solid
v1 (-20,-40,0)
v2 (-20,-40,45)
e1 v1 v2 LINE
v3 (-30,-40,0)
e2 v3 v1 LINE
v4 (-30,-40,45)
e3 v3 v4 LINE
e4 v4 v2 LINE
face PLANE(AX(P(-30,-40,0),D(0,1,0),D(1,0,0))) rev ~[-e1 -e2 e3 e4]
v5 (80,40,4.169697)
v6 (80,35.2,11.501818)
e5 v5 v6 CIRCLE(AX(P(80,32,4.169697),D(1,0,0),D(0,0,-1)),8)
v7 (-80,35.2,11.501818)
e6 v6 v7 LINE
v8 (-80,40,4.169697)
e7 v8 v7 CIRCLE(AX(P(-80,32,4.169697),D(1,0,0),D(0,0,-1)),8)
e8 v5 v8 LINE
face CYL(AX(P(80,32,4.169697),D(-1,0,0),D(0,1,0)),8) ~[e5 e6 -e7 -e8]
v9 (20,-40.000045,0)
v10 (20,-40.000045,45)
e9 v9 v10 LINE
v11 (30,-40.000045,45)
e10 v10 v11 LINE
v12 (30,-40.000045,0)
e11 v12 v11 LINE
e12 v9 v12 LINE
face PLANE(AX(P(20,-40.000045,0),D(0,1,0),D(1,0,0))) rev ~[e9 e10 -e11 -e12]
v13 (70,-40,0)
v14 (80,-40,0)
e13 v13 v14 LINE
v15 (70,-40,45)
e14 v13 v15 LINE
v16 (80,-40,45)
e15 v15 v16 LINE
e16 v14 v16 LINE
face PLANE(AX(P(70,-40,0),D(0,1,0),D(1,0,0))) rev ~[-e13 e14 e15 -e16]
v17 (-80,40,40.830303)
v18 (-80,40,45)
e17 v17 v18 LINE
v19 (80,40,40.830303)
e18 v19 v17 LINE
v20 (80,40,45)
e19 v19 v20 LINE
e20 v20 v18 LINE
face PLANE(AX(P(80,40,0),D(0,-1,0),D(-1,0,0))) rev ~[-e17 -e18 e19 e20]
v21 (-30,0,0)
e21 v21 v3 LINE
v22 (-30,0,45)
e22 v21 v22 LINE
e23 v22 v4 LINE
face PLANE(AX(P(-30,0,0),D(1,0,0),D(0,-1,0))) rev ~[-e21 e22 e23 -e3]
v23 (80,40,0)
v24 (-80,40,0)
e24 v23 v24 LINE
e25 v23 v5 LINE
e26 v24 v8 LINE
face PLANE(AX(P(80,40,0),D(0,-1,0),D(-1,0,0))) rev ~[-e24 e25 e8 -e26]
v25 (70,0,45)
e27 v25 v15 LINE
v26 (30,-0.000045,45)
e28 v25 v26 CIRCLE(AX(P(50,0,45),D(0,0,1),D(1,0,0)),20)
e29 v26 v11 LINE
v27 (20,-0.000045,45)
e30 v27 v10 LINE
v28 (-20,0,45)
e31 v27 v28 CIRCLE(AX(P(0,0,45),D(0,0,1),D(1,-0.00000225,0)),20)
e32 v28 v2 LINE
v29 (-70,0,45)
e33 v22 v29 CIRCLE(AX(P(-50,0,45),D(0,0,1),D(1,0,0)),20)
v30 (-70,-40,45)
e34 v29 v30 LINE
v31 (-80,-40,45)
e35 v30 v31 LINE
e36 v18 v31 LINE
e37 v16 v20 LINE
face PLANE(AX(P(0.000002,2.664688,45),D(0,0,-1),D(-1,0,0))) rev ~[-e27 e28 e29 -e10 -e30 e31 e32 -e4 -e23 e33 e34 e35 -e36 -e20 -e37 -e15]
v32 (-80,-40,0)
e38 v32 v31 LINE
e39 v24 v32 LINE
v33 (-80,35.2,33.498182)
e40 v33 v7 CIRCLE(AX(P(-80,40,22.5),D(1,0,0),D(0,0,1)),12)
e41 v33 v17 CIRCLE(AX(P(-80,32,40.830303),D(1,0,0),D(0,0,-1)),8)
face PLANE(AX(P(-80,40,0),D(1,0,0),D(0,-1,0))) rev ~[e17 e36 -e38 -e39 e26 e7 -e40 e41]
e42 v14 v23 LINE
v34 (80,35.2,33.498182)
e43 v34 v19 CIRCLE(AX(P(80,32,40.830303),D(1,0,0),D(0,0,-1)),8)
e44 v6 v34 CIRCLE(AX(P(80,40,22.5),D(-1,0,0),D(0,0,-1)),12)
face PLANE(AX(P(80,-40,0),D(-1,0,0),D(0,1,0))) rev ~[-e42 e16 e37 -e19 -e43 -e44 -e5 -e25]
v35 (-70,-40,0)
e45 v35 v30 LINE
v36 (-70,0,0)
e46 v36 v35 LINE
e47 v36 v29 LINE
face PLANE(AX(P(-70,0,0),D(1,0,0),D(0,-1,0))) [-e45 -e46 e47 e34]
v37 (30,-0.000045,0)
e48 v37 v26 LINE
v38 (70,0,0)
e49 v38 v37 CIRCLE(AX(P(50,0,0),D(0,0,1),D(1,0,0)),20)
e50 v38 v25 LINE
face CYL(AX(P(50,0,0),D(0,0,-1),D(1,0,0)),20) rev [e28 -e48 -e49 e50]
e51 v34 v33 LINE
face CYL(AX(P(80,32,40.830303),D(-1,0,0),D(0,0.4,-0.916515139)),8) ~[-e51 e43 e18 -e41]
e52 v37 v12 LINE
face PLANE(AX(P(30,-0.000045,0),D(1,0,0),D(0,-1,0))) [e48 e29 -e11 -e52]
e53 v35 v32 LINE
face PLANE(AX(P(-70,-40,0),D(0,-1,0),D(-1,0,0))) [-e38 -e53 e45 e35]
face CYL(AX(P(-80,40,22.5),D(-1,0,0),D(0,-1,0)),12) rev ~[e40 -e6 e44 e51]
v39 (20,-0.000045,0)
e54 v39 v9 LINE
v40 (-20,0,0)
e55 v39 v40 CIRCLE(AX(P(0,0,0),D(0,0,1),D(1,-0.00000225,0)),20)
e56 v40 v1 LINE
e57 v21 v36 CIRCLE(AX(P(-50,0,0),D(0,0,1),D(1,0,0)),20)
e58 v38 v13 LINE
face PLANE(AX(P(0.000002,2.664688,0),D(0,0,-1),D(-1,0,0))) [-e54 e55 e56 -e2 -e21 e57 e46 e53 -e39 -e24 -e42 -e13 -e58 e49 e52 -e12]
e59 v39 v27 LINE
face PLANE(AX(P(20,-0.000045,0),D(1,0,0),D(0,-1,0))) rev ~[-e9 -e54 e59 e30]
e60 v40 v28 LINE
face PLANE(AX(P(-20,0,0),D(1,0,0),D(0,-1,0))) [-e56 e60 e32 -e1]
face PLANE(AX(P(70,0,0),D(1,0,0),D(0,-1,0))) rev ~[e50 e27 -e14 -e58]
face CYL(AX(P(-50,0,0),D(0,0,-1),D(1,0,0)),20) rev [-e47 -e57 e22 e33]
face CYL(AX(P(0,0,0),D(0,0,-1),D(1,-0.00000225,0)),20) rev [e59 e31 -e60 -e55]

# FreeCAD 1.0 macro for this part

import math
import FreeCAD as App
import Part
import Sketcher
from FreeCAD import Vector
Q = App.Units.Quantity


def edges_at(feature, points):
    """Names of the edges that pass closest to the given points."""
    edges = feature.Shape.Edges
    near = lambda p: min(range(len(edges)), key=lambda i: edges[i].distToShape(Part.Vertex(*p))[0])
    return sorted({f"Edge{near(p) + 1}" for p in points})

doc = App.newDocument("Part")
params = doc.addObject("Spreadsheet::Sheet", "Params")
for row, (alias, value) in enumerate([
    ("sketch1_radius", "20 mm"),
    ("sketch1_width", "10 mm"),
    ("sketch1_height", "40 mm"),
    ("pad1_length", "45 mm"),
    ("sketch2_diameter", "24 mm"),
    ("fillet_radius", "8 mm"),
], start=1):
    params.set(f"A{row}", alias)
    params.set(f"B{row}", "=" + value)
    params.setAlias(f"B{row}", alias)

body = doc.addObject("PartDesign::Body", "Body")

# Sketch on XY plane
sketch1 = doc.addObject("Sketcher::SketchObject", "Sketch")
body.addObject(sketch1)
sketch1.AttachmentSupport = (doc.XY_Plane, [""])
sketch1.MapMode = "FlatFace"
sketch1.addGeometry(Part.ArcOfCircle(Part.Circle(Vector(-50, 0, 0), Vector(0, 0, 1), 20), math.radians(0), math.radians(180)), False)
sketch1.addGeometry(Part.LineSegment(Vector(-30, 0, 0), Vector(-30, -40, 0)), False)
sketch1.addGeometry(Part.LineSegment(Vector(-30, -40, 0), Vector(-20, -40, 0)), False)
sketch1.addGeometry(Part.LineSegment(Vector(-20, -40, 0), Vector(-20, 0, 0)), False)
sketch1.addGeometry(Part.ArcOfCircle(Part.Circle(Vector(0, 0, 0), Vector(0, 0, 1), 20), math.radians(0), math.radians(180)), False)
sketch1.addGeometry(Part.LineSegment(Vector(20, 0, 0), Vector(20, -40, 0)), False)
sketch1.addGeometry(Part.LineSegment(Vector(20, -40, 0), Vector(30, -40, 0)), False)
sketch1.addGeometry(Part.LineSegment(Vector(30, -40, 0), Vector(30, 0, 0)), False)
sketch1.addGeometry(Part.ArcOfCircle(Part.Circle(Vector(50, 0, 0), Vector(0, 0, 1), 20), math.radians(0), math.radians(180)), False)
sketch1.addGeometry(Part.LineSegment(Vector(70, 0, 0), Vector(70, -40, 0)), False)
sketch1.addGeometry(Part.LineSegment(Vector(70, -40, 0), Vector(80, -40, 0)), False)
sketch1.addGeometry(Part.LineSegment(Vector(80, -40, 0), Vector(80, 40, 0)), False)
sketch1.addGeometry(Part.LineSegment(Vector(80, 40, 0), Vector(-80, 40, 0)), False)
sketch1.addGeometry(Part.LineSegment(Vector(-80, 40, 0), Vector(-80, -40, 0)), False)
sketch1.addGeometry(Part.LineSegment(Vector(-80, -40, 0), Vector(-70, -40, 0)), False)
sketch1.addGeometry(Part.LineSegment(Vector(-70, -40, 0), Vector(-70, 0, 0)), False)
sketch1.addConstraint(Sketcher.Constraint("Tangent", 0, 1, 1, 1))
sketch1.addConstraint(Sketcher.Constraint("Coincident", 1, 2, 2, 1))
sketch1.addConstraint(Sketcher.Constraint("Coincident", 2, 2, 3, 1))
sketch1.addConstraint(Sketcher.Constraint("Tangent", 3, 2, 4, 2))
sketch1.addConstraint(Sketcher.Constraint("Coincident", 4, 1, 5, 1))
sketch1.addConstraint(Sketcher.Constraint("Coincident", 5, 2, 6, 1))
sketch1.addConstraint(Sketcher.Constraint("Coincident", 6, 2, 7, 1))
sketch1.addConstraint(Sketcher.Constraint("Coincident", 7, 2, 8, 2))
sketch1.addConstraint(Sketcher.Constraint("Tangent", 8, 1, 9, 1))
sketch1.addConstraint(Sketcher.Constraint("Coincident", 9, 2, 10, 1))
sketch1.addConstraint(Sketcher.Constraint("Coincident", 10, 2, 11, 1))
sketch1.addConstraint(Sketcher.Constraint("Coincident", 11, 2, 12, 1))
sketch1.addConstraint(Sketcher.Constraint("Coincident", 12, 2, 13, 1))
sketch1.addConstraint(Sketcher.Constraint("Coincident", 13, 2, 14, 1))
sketch1.addConstraint(Sketcher.Constraint("Coincident", 14, 2, 15, 1))
sketch1.addConstraint(Sketcher.Constraint("Tangent", 15, 2, 0, 2))
sketch1.addConstraint(Sketcher.Constraint("Vertical", 1))
sketch1.addConstraint(Sketcher.Constraint("Horizontal", 2))
sketch1.addConstraint(Sketcher.Constraint("Vertical", 3))
sketch1.addConstraint(Sketcher.Constraint("Vertical", 5))
sketch1.addConstraint(Sketcher.Constraint("Horizontal", 6))
sketch1.addConstraint(Sketcher.Constraint("Vertical", 7))
sketch1.addConstraint(Sketcher.Constraint("Vertical", 9))
sketch1.addConstraint(Sketcher.Constraint("Horizontal", 10))
sketch1.addConstraint(Sketcher.Constraint("Vertical", 11))
sketch1.addConstraint(Sketcher.Constraint("Horizontal", 12))
sketch1.addConstraint(Sketcher.Constraint("Vertical", 13))
sketch1.addConstraint(Sketcher.Constraint("Horizontal", 14))
sketch1.addConstraint(Sketcher.Constraint("Vertical", 15))
sketch1.addConstraint(Sketcher.Constraint("Coincident", 4, 3, -1, 1))
sketch1.addConstraint(Sketcher.Constraint("Equal", 0, 4))
sketch1.addConstraint(Sketcher.Constraint("Equal", 4, 8))
sketch1.addConstraint(Sketcher.Constraint("Symmetric", 0, 3, 8, 3, -1, 1))
sketch1.addConstraint(Sketcher.Constraint("Symmetric", 10, 2, 12, 2, -1, 1))
sketch1.addConstraint(Sketcher.Constraint("PointOnObject", 0, 3, -1))
sketch1.addConstraint(Sketcher.Constraint("Horizontal", 4, 1, 7, 2))
sketch1.addConstraint(Sketcher.Constraint("Horizontal", 2, 2, 9, 2))
sketch1.addConstraint(Sketcher.Constraint("Horizontal", 10, 2, 13, 2))
sketch1.addConstraint(Sketcher.Constraint("Equal", 6, 10))
sketch1.addConstraint(Sketcher.Constraint("Equal", 3, 5))
sketch1.addConstraint(Sketcher.Constraint("Radius", 0, Q("20 mm")))
sketch1.addConstraint(Sketcher.Constraint("DistanceX", 2, 1, 2, 2, Q("10 mm")))
sketch1.addConstraint(Sketcher.Constraint("DistanceY", 1, 2, 1, 1, Q("40 mm")))
sketch1.addConstraint(Sketcher.Constraint("DistanceY", 5, 2, -1, 1, Q("40.000045 mm")))
sketch1.setExpression("Constraints[40]", "Params.sketch1_radius")
sketch1.setExpression("Constraints[41]", "Params.sketch1_width")
sketch1.setExpression("Constraints[42]", "Params.sketch1_height")
pad1 = doc.addObject("PartDesign::Pad", "Pad")
body.addObject(pad1)
pad1.Profile = sketch1
pad1.setExpression("Length", "Params.pad1_length")

# Sketch on YZ plane
sketch2 = doc.addObject("Sketcher::SketchObject", "Sketch001")
body.addObject(sketch2)
sketch2.AttachmentSupport = (doc.YZ_Plane, [""])
sketch2.MapMode = "FlatFace"
sketch2.AttachmentOffset = App.Placement(Vector(0, 0, -80), App.Rotation())
sketch2.addGeometry(Part.Circle(Vector(40, 22, 0), Vector(0, 0, 1), 12), False)
sketch2.addConstraint(Sketcher.Constraint("Diameter", 0, Q("24 mm")))
sketch2.addConstraint(Sketcher.Constraint("DistanceX", -1, 1, 0, 3, Q("40 mm")))
sketch2.addConstraint(Sketcher.Constraint("DistanceY", -1, 1, 0, 3, Q("22.5 mm")))
sketch2.setExpression("Constraints[0]", "Params.sketch2_diameter")
pocket1 = doc.addObject("PartDesign::Pocket", "Pocket")
body.addObject(pocket1)
pocket1.Profile = sketch2
pocket1.Type = "ThroughAll"
pocket1.Reversed = True
doc.recompute()

fillet = doc.addObject("PartDesign::Fillet", "Fillet")
body.addObject(fillet)
fillet.Base = (pocket1, edges_at(pocket1, [(0, 40, 34.5), (0, 40, 10.5)]))
fillet.setExpression("Radius", "Params.fillet_radius")

doc.recompute()
